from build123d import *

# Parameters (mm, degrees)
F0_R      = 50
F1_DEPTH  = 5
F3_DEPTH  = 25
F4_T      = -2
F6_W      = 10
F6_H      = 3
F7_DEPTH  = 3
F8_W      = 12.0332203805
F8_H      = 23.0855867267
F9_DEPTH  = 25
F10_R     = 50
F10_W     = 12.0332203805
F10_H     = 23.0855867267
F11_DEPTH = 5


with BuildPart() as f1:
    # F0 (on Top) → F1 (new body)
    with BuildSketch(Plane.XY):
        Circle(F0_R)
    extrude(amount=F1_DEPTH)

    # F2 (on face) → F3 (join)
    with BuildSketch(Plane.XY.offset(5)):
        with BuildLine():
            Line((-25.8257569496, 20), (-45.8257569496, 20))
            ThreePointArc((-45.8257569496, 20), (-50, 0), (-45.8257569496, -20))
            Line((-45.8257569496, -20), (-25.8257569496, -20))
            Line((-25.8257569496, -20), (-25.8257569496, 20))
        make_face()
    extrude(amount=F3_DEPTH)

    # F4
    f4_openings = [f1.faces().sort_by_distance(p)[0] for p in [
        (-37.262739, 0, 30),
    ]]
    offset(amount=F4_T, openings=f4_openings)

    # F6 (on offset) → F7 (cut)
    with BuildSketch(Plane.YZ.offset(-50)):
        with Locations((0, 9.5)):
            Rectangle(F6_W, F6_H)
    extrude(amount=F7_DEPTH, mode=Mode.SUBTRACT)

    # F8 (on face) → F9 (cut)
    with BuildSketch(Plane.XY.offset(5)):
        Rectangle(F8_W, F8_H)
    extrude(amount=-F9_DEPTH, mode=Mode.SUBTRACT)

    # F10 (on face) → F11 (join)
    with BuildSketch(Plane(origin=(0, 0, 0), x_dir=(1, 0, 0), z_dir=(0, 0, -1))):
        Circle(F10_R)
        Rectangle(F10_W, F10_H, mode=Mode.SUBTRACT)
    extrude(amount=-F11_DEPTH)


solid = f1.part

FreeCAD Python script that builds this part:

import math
import FreeCAD as App
import Part
import Sketcher
from FreeCAD import Vector


def faces_at(feature, points):
    """Names of the faces that lie closest to the given points."""
    faces = feature.Shape.Faces
    near = lambda p: min(range(len(faces)), key=lambda i: faces[i].distToShape(Part.Vertex(*p))[0])
    return sorted({f"Face{near(p) + 1}" for p in points})


def add_polygon(sketch, points):
    """Adds a closed chain of lines whose ends are joined by coincident constraints."""
    first, n = sketch.GeometryCount, len(points)
    for a, b in zip(points, points[1:] + points[:1]):
        sketch.addGeometry(Part.LineSegment(App.Vector(*a, 0), App.Vector(*b, 0)), False)
    for i in range(n):
        sketch.addConstraint(Sketcher.Constraint("Coincident", first + i, 2, first + (i + 1) % n, 1))

doc = App.newDocument("Part")
body = doc.addObject("PartDesign::Body", "Body")

# Sketch on XY plane
sketch1 = body.newObject("Sketcher::SketchObject", "Sketch")
sketch1.AttachmentSupport = (doc.getObject("XY_Plane"), [""])
sketch1.MapMode = "FlatFace"
sketch1.addGeometry(Part.Circle(Vector(0, 0, 0), Vector(0, 0, 1), 50), False)
sketch1.addConstraint([
    Sketcher.Constraint("Coincident", 0, 3, -1, 1),
    Sketcher.Constraint("Diameter", 0, 100.0),
])
pad1 = body.newObject("PartDesign::Pad", "Pad")
pad1.Profile = sketch1
pad1.Length = 5

# Sketch on XY plane
sketch2 = body.newObject("Sketcher::SketchObject", "Sketch001")
sketch2.AttachmentSupport = (doc.getObject("XY_Plane"), [""])
sketch2.MapMode = "FlatFace"
sketch2.AttachmentOffset = App.Placement(Vector(0, 0, 5), App.Rotation())
sketch2.addGeometry([
    Part.LineSegment(Vector(-25.825757, 20, 0), Vector(-45.825757, 20, 0)),
    Part.ArcOfCircle(Part.Circle(Vector(0, 0, 0), Vector(0, 0, 1), 50), math.radians(156.421822), math.radians(203.578178)),
    Part.LineSegment(Vector(-45.825757, -20, 0), Vector(-25.825757, -20, 0)),
    Part.LineSegment(Vector(-25.825757, -20, 0), Vector(-25.825757, 20, 0)),
], False)
sketch2.addConstraint([
    Sketcher.Constraint("Coincident", 0, 2, 1, 1),
    Sketcher.Constraint("Coincident", 1, 2, 2, 1),
    Sketcher.Constraint("Coincident", 2, 2, 3, 1),
    Sketcher.Constraint("Coincident", 3, 2, 0, 1),
    Sketcher.Constraint("Horizontal", 0),
    Sketcher.Constraint("Horizontal", 2),
    Sketcher.Constraint("Vertical", 3),
    Sketcher.Constraint("Coincident", 1, 3, -1, 1),
    Sketcher.Constraint("Vertical", 0, 2, 1, 2),
    Sketcher.Constraint("Radius", 1, 50.0),
    Sketcher.Constraint("DistanceX", 0, 2, 0, 1, 20.0),
    Sketcher.Constraint("DistanceY", 3, 1, 3, 2, 40.0),
])
pad2 = body.newObject("PartDesign::Pad", "Pad001")
pad2.Profile = sketch2
pad2.Length = 25
doc.recompute()

thickness = body.newObject("PartDesign::Thickness", "Thickness")
thickness.Base = (pad2, faces_at(pad2, [(-37.913, 0, 30)]))
thickness.Value = 2
thickness.Reversed = True
thickness.Join = "Arc"

# Sketch on YZ plane
sketch3 = body.newObject("Sketcher::SketchObject", "Sketch002")
sketch3.AttachmentSupport = (doc.getObject("YZ_Plane"), [""])
sketch3.MapMode = "FlatFace"
sketch3.AttachmentOffset = App.Placement(Vector(0, 0, -50), App.Rotation())
add_polygon(sketch3, [(-5, 11), (-5, 8), (5, 8), (5, 11)])  # lines 0-3
sketch3.addConstraint([
    Sketcher.Constraint("Vertical", 0),
    Sketcher.Constraint("Horizontal", 1),
    Sketcher.Constraint("Vertical", 2),
    Sketcher.Constraint("Horizontal", 3),
    Sketcher.Constraint("DistanceX", 1, 1, 1, 2, 10.0),
    Sketcher.Constraint("DistanceY", 0, 2, 0, 1, 3.0),
    Sketcher.Constraint("DistanceX", 0, 2, -1, 1, 5.0),
    Sketcher.Constraint("DistanceY", -1, 1, 0, 2, 8.0),
])
pocket1 = body.newObject("PartDesign::Pocket", "Pocket")
pocket1.Profile = sketch3
pocket1.Length = 3
pocket1.Reversed = True

# Sketch on XY plane
sketch4 = body.newObject("Sketcher::SketchObject", "Sketch003")
sketch4.AttachmentSupport = (doc.getObject("XY_Plane"), [""])
sketch4.MapMode = "FlatFace"
sketch4.AttachmentOffset = App.Placement(Vector(0, 0, 5), App.Rotation())
add_polygon(sketch4, [(-6.01661, 11.542793), (-6.01661, -11.542793), (6.01661, -11.542793), (6.01661, 11.542793)])  # lines 0-3
sketch4.addConstraint([
    Sketcher.Constraint("Vertical", 0),
    Sketcher.Constraint("Horizontal", 1),
    Sketcher.Constraint("Vertical", 2),
    Sketcher.Constraint("Horizontal", 3),
    Sketcher.Constraint("Symmetric", 0, 2, 2, 2, -1, 1),
    Sketcher.Constraint("DistanceX", 1, 1, 1, 2, 12.03322),
    Sketcher.Constraint("DistanceY", 0, 2, 0, 1, 23.085587),
])
pocket2 = body.newObject("PartDesign::Pocket", "Pocket001")
pocket2.Profile = sketch4
pocket2.Length = 25

# Sketch on XY plane
sketch5 = body.newObject("Sketcher::SketchObject", "Sketch004")
sketch5.AttachmentSupport = (doc.getObject("XY_Plane"), [""])
sketch5.MapMode = "FlatFace"
sketch5.addGeometry(Part.Circle(Vector(0, 0, 0), Vector(0, 0, 1), 50), False)  # 0
add_polygon(sketch5, [(6.01661, 11.542793), (-6.01661, 11.542793), (-6.01661, -11.542793), (6.01661, -11.542793)])  # lines 1-4
sketch5.addConstraint([
    Sketcher.Constraint("Horizontal", 1),
    Sketcher.Constraint("Vertical", 2),
    Sketcher.Constraint("Horizontal", 3),
    Sketcher.Constraint("Vertical", 4),
    Sketcher.Constraint("Coincident", 0, 3, -1, 1),
    Sketcher.Constraint("Symmetric", 1, 2, 3, 2, -1, 1),
    Sketcher.Constraint("Diameter", 0, 100.0),
    Sketcher.Constraint("DistanceX", 1, 2, 1, 1, 12.03322),
    Sketcher.Constraint("DistanceY", 2, 2, 2, 1, 23.085587),
])
pad3 = body.newObject("PartDesign::Pad", "Pad002")
pad3.Profile = sketch5
pad3.Length = 5

doc.recompute()
